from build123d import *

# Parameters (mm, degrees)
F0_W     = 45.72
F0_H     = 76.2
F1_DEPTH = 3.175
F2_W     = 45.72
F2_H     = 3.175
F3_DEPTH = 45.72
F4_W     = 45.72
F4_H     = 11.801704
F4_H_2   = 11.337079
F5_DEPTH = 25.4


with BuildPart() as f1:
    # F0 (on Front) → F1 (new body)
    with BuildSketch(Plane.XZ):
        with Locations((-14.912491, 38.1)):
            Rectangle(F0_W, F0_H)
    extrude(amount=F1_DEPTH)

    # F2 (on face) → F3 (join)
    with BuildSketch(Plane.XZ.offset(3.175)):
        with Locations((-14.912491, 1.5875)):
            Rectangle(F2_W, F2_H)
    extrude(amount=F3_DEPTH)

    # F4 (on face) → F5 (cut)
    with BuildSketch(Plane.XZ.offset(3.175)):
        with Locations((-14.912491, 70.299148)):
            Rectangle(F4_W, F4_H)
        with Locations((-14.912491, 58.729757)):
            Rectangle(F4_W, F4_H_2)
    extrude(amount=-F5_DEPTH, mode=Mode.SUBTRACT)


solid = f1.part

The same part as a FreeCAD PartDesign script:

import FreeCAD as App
import Part
import Sketcher
from FreeCAD import Vector
Q = App.Units.Quantity


def add_polygon(sketch, points):
    """Adds a closed chain of lines whose ends are joined by coincident constraints."""
    first, n = sketch.GeometryCount, len(points)
    for a, b in zip(points, points[1:] + points[:1]):
        sketch.addGeometry(Part.LineSegment(App.Vector(*a, 0), App.Vector(*b, 0)), False)
    for i in range(n):
        sketch.addConstraint(Sketcher.Constraint("Coincident", first + i, 2, first + (i + 1) % n, 1))

doc = App.newDocument("Part")
params = doc.addObject("Spreadsheet::Sheet", "Params")
for row, (alias, value) in enumerate([
    ("sketch1_height", "3 in"),
    ("sketch1_width", "1.8 in"),
    ("pad1_length", "0.125 in"),
    ("sketch2_width", "1.8 in"),
    ("sketch2_height", "0.125 in"),
    ("pad2_length", "1.8 in"),
    ("sketch3_width", "1.8 in"),
    ("pocket1_length", "1 in"),
], start=1):
    params.set(f"A{row}", alias)
    params.set(f"B{row}", "=" + value)
    params.setAlias(f"B{row}", alias)

body = doc.addObject("PartDesign::Body", "Body")

sketch1 = body.newObject("Sketcher::SketchObject", "Sketch")
sketch1.AttachmentSupport = (doc.getObject("XZ_Plane"), [""])
sketch1.MapMode = "FlatFace"
add_polygon(sketch1, [(-38, 76), (-38, 0), (8, 0), (8, 76)])
sketch1.addConstraint([
    Sketcher.Constraint("Vertical", 0),
    Sketcher.Constraint("Horizontal", 1),
    Sketcher.Constraint("Vertical", 2),
    Sketcher.Constraint("Horizontal", 3),
    Sketcher.Constraint("PointOnObject", 0, 2, -1),
    Sketcher.Constraint("DistanceY", 0, 2, 0, 1, Q("3 in")),
    Sketcher.Constraint("DistanceX", 1, 1, 1, 2, Q("1.8 in")),
    Sketcher.Constraint("DistanceX", 0, 2, -1, 1, 37.772491),
])
sketch1.setExpression("Constraints[9]", "Params.sketch1_height")
sketch1.setExpression("Constraints[10]", "Params.sketch1_width")
pad1 = body.newObject("PartDesign::Pad", "Pad")
pad1.Profile = sketch1
pad1.setExpression("Length", "Params.pad1_length")

sketch2 = body.newObject("Sketcher::SketchObject", "Sketch001")
sketch2.AttachmentSupport = (doc.getObject("XZ_Plane"), [""])
sketch2.MapMode = "FlatFace"
sketch2.AttachmentOffset = App.Placement(Vector(0, 0, 0.125 * 25.4), App.Rotation())
add_polygon(sketch2, [(-37.8, 3.2), (-37.8, 0), (7.9, 0), (7.9, 3.2)])
sketch2.addConstraint([
    Sketcher.Constraint("Vertical", 0),
    Sketcher.Constraint("Horizontal", 1),
    Sketcher.Constraint("Vertical", 2),
    Sketcher.Constraint("Horizontal", 3),
    Sketcher.Constraint("PointOnObject", 0, 2, -1),
    Sketcher.Constraint("DistanceX", 1, 1, 1, 2, Q("1.8 in")),
    Sketcher.Constraint("DistanceY", 0, 2, 0, 1, Q("0.125 in")),
    Sketcher.Constraint("DistanceX", 0, 2, -1, 1, 37.772491),
])
sketch2.setExpression("Constraints[9]", "Params.sketch2_width")
sketch2.setExpression("Constraints[10]", "Params.sketch2_height")
pad2 = body.newObject("PartDesign::Pad", "Pad001")
pad2.Profile = sketch2
pad2.setExpression("Length", "Params.pad2_length")

sketch3 = body.newObject("Sketcher::SketchObject", "Sketch002")
sketch3.AttachmentSupport = (doc.getObject("XZ_Plane"), [""])
sketch3.MapMode = "FlatFace"
sketch3.AttachmentOffset = App.Placement(Vector(0, 0, 0.125 * 25.4), App.Rotation())
add_polygon(sketch3, [(-38, 53), (8, 53), (8, 76), (-38, 76)])
sketch3.addConstraint([
    Sketcher.Constraint("Horizontal", 0),
    Sketcher.Constraint("Vertical", 1),
    Sketcher.Constraint("Horizontal", 2),
    Sketcher.Constraint("Vertical", 3),
    Sketcher.Constraint("DistanceX", 0, 1, 0, 2, Q("1.8 in")),
    Sketcher.Constraint("DistanceY", -1, 1, 1, 2, Q("3 in")),
    Sketcher.Constraint("DistanceY", 1, 1, 1, 2, 23.138783),
    Sketcher.Constraint("DistanceX", -1, 1, 0, 2, 7.947509),
])
sketch3.setExpression("Constraints[8]", "Params.sketch3_width")
pocket1 = body.newObject("PartDesign::Pocket", "Pocket")
pocket1.Profile = sketch3
pocket1.setExpression("Length", "Params.pocket1_length")

doc.recompute()
